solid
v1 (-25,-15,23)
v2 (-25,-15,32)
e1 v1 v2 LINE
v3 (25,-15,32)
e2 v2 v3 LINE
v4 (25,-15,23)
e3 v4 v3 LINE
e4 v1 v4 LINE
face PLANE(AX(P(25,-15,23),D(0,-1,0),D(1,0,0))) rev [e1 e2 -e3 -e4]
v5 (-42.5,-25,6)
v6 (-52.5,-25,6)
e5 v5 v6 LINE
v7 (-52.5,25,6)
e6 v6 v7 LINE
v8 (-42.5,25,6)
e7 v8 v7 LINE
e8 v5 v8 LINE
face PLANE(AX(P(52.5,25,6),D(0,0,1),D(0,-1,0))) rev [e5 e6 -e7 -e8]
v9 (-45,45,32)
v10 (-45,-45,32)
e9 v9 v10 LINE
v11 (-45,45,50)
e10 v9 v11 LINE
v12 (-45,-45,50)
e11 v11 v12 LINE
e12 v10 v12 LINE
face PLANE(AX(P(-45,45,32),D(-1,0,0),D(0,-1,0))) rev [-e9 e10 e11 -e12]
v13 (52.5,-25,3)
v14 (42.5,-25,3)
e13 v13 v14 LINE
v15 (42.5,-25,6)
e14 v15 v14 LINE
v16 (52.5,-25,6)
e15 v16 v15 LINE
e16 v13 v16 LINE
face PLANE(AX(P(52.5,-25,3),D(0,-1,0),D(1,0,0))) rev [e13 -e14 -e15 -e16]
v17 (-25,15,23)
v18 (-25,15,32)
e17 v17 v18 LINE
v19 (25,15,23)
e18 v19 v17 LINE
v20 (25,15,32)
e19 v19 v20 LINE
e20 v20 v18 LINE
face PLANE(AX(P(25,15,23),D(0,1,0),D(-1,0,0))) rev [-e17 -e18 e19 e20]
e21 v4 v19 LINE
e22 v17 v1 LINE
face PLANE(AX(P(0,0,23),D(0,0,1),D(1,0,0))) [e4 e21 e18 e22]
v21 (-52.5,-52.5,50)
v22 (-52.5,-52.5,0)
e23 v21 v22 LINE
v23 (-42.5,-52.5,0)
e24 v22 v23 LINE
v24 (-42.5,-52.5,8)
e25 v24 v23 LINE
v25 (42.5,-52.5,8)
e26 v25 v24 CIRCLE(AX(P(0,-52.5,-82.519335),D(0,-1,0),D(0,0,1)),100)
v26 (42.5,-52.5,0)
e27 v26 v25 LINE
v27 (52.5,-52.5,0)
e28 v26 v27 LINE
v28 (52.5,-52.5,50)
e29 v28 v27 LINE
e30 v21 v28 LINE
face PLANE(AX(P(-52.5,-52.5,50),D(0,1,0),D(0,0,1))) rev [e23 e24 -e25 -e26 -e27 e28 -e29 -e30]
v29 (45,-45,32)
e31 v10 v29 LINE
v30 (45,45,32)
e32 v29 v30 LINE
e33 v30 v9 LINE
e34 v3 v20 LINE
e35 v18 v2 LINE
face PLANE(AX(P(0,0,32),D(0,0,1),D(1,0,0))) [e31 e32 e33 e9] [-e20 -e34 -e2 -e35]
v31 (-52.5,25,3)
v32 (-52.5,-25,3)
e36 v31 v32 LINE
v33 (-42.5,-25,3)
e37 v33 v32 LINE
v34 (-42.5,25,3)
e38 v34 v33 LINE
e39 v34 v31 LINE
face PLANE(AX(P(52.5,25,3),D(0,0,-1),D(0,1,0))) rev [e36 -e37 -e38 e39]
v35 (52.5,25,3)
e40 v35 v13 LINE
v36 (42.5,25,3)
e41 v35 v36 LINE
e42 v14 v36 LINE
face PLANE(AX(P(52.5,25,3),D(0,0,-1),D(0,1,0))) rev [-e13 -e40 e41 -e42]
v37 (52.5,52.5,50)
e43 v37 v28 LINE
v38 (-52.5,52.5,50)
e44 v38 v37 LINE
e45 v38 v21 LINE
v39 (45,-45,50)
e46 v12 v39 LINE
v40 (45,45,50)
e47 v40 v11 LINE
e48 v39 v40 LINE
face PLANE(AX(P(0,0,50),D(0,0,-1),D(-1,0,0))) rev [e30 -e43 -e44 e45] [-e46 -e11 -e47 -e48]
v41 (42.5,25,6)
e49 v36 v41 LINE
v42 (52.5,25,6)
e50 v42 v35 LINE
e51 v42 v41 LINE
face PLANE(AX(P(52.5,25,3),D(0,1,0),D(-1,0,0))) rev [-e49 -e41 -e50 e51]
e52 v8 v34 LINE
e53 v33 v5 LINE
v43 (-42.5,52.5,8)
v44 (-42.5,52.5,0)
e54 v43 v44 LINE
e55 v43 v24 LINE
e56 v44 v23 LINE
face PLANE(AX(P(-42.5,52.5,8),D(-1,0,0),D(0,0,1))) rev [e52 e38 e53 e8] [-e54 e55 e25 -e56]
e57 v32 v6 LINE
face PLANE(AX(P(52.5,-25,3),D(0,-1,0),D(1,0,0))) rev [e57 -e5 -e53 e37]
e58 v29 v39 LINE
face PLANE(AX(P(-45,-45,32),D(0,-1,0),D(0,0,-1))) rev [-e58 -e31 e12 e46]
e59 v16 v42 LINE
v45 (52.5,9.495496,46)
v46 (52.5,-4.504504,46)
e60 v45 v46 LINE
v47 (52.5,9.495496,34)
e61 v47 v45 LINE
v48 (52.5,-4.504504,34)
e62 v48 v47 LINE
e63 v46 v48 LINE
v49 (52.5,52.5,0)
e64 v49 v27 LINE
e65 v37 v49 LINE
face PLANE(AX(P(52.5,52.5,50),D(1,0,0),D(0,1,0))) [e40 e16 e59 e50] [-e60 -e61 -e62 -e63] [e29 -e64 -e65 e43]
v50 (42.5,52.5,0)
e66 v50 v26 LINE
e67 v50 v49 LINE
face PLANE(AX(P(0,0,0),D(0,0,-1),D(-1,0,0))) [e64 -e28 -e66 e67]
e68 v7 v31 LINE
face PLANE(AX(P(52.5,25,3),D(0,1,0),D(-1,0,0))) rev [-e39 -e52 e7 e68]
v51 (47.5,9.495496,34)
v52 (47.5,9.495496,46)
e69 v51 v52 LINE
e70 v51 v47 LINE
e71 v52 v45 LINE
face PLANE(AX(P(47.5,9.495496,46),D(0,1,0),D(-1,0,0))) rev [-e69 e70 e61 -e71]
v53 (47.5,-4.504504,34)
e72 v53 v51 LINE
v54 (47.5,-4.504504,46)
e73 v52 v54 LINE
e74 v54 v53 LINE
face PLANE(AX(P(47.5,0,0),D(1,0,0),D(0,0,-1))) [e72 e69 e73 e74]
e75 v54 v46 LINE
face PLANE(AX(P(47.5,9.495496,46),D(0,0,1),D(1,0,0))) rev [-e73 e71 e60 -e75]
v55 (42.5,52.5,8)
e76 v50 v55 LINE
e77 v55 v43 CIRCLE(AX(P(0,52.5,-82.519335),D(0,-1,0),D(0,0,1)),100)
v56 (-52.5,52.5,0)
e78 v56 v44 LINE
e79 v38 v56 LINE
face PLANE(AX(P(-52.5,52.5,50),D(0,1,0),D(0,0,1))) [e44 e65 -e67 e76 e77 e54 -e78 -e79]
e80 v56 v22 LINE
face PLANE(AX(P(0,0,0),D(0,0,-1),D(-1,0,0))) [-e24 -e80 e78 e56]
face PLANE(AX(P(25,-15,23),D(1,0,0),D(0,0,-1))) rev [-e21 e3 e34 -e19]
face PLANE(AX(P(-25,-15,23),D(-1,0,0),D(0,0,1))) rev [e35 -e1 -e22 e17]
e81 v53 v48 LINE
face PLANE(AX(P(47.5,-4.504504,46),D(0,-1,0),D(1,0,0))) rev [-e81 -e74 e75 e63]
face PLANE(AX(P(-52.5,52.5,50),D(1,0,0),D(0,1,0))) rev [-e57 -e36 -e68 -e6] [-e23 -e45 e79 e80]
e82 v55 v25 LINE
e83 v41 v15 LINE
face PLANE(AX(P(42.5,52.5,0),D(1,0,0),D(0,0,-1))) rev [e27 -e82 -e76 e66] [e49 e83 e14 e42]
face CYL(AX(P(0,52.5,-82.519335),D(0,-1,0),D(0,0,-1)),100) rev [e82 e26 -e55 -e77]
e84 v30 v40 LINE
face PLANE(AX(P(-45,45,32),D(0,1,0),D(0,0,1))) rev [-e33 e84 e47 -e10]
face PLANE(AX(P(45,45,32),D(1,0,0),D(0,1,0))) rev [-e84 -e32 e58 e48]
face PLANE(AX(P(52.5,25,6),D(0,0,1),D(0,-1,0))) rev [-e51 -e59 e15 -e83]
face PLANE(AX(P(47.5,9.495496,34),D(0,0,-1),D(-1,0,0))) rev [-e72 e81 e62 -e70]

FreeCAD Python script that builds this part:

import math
import FreeCAD as App
import Part
import Sketcher
from FreeCAD import Vector

doc = App.newDocument("Part")
params = doc.addObject("Spreadsheet::Sheet", "Params")
for row, (alias, value) in enumerate([
    ("sketch1_width", "105 mm"),
    ("pad1_length", "50 mm"),
    ("sketch2_radius", "100 mm"),
    ("sketch2_width", "85 mm"),
    ("sketch2_height", "8 mm"),
    ("sketch3_width", "90 mm"),
    ("pocket2_length", "18 mm"),
    ("sketch4_width", "50 mm"),
    ("sketch4_height", "30 mm"),
    ("pocket3_length", "9 mm"),
    ("sketch5_width", "50 mm"),
    ("sketch5_height", "3 mm"),
    ("sketch6_width", "14 mm"),
    ("sketch6_height", "12 mm"),
    ("pocket5_length", "5 mm"),
], start=1):
    params.set(f"A{row}", alias)
    params.set(f"B{row}", "=" + value)
    params.setAlias(f"B{row}", alias)

body = doc.addObject("PartDesign::Body", "Body")

# Sketch on XY plane
sketch1 = doc.addObject("Sketcher::SketchObject", "Sketch")
body.addObject(sketch1)
sketch1.AttachmentSupport = (doc.XY_Plane, [""])
sketch1.MapMode = "FlatFace"
sketch1.addGeometry(Part.LineSegment(Vector(-52, 52, 0), Vector(-52, -52, 0)), False)
sketch1.addGeometry(Part.LineSegment(Vector(-52, -52, 0), Vector(52, -52, 0)), False)
sketch1.addGeometry(Part.LineSegment(Vector(52, -52, 0), Vector(52, 52, 0)), False)
sketch1.addGeometry(Part.LineSegment(Vector(52, 52, 0), Vector(-52, 52, 0)), False)
sketch1.addConstraint(Sketcher.Constraint("Coincident", 0, 2, 1, 1))
sketch1.addConstraint(Sketcher.Constraint("Coincident", 1, 2, 2, 1))
sketch1.addConstraint(Sketcher.Constraint("Coincident", 2, 2, 3, 1))
sketch1.addConstraint(Sketcher.Constraint("Coincident", 3, 2, 0, 1))
sketch1.addConstraint(Sketcher.Constraint("Vertical", 0))
sketch1.addConstraint(Sketcher.Constraint("Horizontal", 1))
sketch1.addConstraint(Sketcher.Constraint("Vertical", 2))
sketch1.addConstraint(Sketcher.Constraint("Horizontal", 3))
sketch1.addConstraint(Sketcher.Constraint("Symmetric", 0, 2, 2, 2, -1, 1))
sketch1.addConstraint(Sketcher.Constraint("Equal", 3, 0))
sketch1.addConstraint(Sketcher.Constraint("DistanceX", 1, 1, 1, 2, 105.0))
sketch1.setExpression("Constraints[10]", "Params.sketch1_width")
pad1 = doc.addObject("PartDesign::Pad", "Pad")
body.addObject(pad1)
pad1.Profile = sketch1
pad1.setExpression("Length", "Params.pad1_length")

# Sketch on XZ plane
sketch2 = doc.addObject("Sketcher::SketchObject", "Sketch001")
body.addObject(sketch2)
sketch2.AttachmentSupport = (doc.XZ_Plane, [""])
sketch2.MapMode = "FlatFace"
sketch2.AttachmentOffset = App.Placement(Vector(0, 0, 52.5), App.Rotation())
sketch2.addGeometry(Part.LineSegment(Vector(-42, 8, 0), Vector(-42, 0, 0)), False)
sketch2.addGeometry(Part.LineSegment(Vector(-42, 0, 0), Vector(42, 0, 0)), False)
sketch2.addGeometry(Part.LineSegment(Vector(42, 0, 0), Vector(42, 8, 0)), False)
sketch2.addGeometry(Part.ArcOfCircle(Part.Circle(Vector(0, -83, 0), Vector(0, 0, 1), 100), math.radians(65), math.radians(115)), False)
sketch2.addConstraint(Sketcher.Constraint("Coincident", 0, 2, 1, 1))
sketch2.addConstraint(Sketcher.Constraint("Coincident", 1, 2, 2, 1))
sketch2.addConstraint(Sketcher.Constraint("Coincident", 2, 2, 3, 1))
sketch2.addConstraint(Sketcher.Constraint("Coincident", 3, 2, 0, 1))
sketch2.addConstraint(Sketcher.Constraint("Vertical", 0))
sketch2.addConstraint(Sketcher.Constraint("Horizontal", 1))
sketch2.addConstraint(Sketcher.Constraint("Vertical", 2))
sketch2.addConstraint(Sketcher.Constraint("Symmetric", 0, 2, 1, 2, -1, 1))
sketch2.addConstraint(Sketcher.Constraint("PointOnObject", 3, 3, -2))
sketch2.addConstraint(Sketcher.Constraint("Radius", 3, 100.0))
sketch2.addConstraint(Sketcher.Constraint("DistanceX", 1, 1, 1, 2, 85.0))
sketch2.addConstraint(Sketcher.Constraint("DistanceY", 0, 2, 0, 1, 8.0))
sketch2.setExpression("Constraints[9]", "Params.sketch2_radius")
sketch2.setExpression("Constraints[10]", "Params.sketch2_width")
sketch2.setExpression("Constraints[11]", "Params.sketch2_height")
pocket1 = doc.addObject("PartDesign::Pocket", "Pocket")
body.addObject(pocket1)
pocket1.Profile = sketch2
pocket1.Type = "ThroughAll"

# Sketch on XY plane
sketch3 = doc.addObject("Sketcher::SketchObject", "Sketch002")
body.addObject(sketch3)
sketch3.AttachmentSupport = (doc.XY_Plane, [""])
sketch3.MapMode = "FlatFace"
sketch3.AttachmentOffset = App.Placement(Vector(0, 0, 50), App.Rotation())
sketch3.addGeometry(Part.LineSegment(Vector(-45, 45, 0), Vector(-45, -45, 0)), False)
sketch3.addGeometry(Part.LineSegment(Vector(-45, -45, 0), Vector(45, -45, 0)), False)
sketch3.addGeometry(Part.LineSegment(Vector(45, -45, 0), Vector(45, 45, 0)), False)
sketch3.addGeometry(Part.LineSegment(Vector(45, 45, 0), Vector(-45, 45, 0)), False)
sketch3.addConstraint(Sketcher.Constraint("Coincident", 0, 2, 1, 1))
sketch3.addConstraint(Sketcher.Constraint("Coincident", 1, 2, 2, 1))
sketch3.addConstraint(Sketcher.Constraint("Coincident", 2, 2, 3, 1))
sketch3.addConstraint(Sketcher.Constraint("Coincident", 3, 2, 0, 1))
sketch3.addConstraint(Sketcher.Constraint("Vertical", 0))
sketch3.addConstraint(Sketcher.Constraint("Horizontal", 1))
sketch3.addConstraint(Sketcher.Constraint("Vertical", 2))
sketch3.addConstraint(Sketcher.Constraint("Horizontal", 3))
sketch3.addConstraint(Sketcher.Constraint("Symmetric", 0, 2, 2, 2, -1, 1))
sketch3.addConstraint(Sketcher.Constraint("Equal", 3, 0))
sketch3.addConstraint(Sketcher.Constraint("DistanceX", 1, 1, 1, 2, 90.0))
sketch3.setExpression("Constraints[10]", "Params.sketch3_width")
pocket2 = doc.addObject("PartDesign::Pocket", "Pocket001")
body.addObject(pocket2)
pocket2.Profile = sketch3
pocket2.setExpression("Length", "Params.pocket2_length")

# Sketch on XY plane
sketch4 = doc.addObject("Sketcher::SketchObject", "Sketch003")
body.addObject(sketch4)
sketch4.AttachmentSupport = (doc.XY_Plane, [""])
sketch4.MapMode = "FlatFace"
sketch4.AttachmentOffset = App.Placement(Vector(0, 0, 32), App.Rotation())
sketch4.addGeometry(Part.LineSegment(Vector(-25, 15, 0), Vector(-25, -15, 0)), False)
sketch4.addGeometry(Part.LineSegment(Vector(-25, -15, 0), Vector(25, -15, 0)), False)
sketch4.addGeometry(Part.LineSegment(Vector(25, -15, 0), Vector(25, 15, 0)), False)
sketch4.addGeometry(Part.LineSegment(Vector(25, 15, 0), Vector(-25, 15, 0)), False)
sketch4.addConstraint(Sketcher.Constraint("Coincident", 0, 2, 1, 1))
sketch4.addConstraint(Sketcher.Constraint("Coincident", 1, 2, 2, 1))
sketch4.addConstraint(Sketcher.Constraint("Coincident", 2, 2, 3, 1))
sketch4.addConstraint(Sketcher.Constraint("Coincident", 3, 2, 0, 1))
sketch4.addConstraint(Sketcher.Constraint("Vertical", 0))
sketch4.addConstraint(Sketcher.Constraint("Horizontal", 1))
sketch4.addConstraint(Sketcher.Constraint("Vertical", 2))
sketch4.addConstraint(Sketcher.Constraint("Horizontal", 3))
sketch4.addConstraint(Sketcher.Constraint("Symmetric", 0, 2, 2, 2, -1, 1))
sketch4.addConstraint(Sketcher.Constraint("DistanceX", 1, 1, 1, 2, 50.0))
sketch4.addConstraint(Sketcher.Constraint("DistanceY", 0, 2, 0, 1, 30.0))
sketch4.setExpression("Constraints[9]", "Params.sketch4_width")
sketch4.setExpression("Constraints[10]", "Params.sketch4_height")
pocket3 = doc.addObject("PartDesign::Pocket", "Pocket002")
body.addObject(pocket3)
pocket3.Profile = sketch4
pocket3.setExpression("Length", "Params.pocket3_length")

# Sketch on YZ plane
sketch5 = doc.addObject("Sketcher::SketchObject", "Sketch004")
body.addObject(sketch5)
sketch5.AttachmentSupport = (doc.YZ_Plane, [""])
sketch5.MapMode = "FlatFace"
sketch5.AttachmentOffset = App.Placement(Vector(0, 0, -52.5), App.Rotation())
sketch5.addGeometry(Part.LineSegment(Vector(25, 3, 0), Vector(-25, 3, 0)), False)
sketch5.addGeometry(Part.LineSegment(Vector(-25, 3, 0), Vector(-25, 6, 0)), False)
sketch5.addGeometry(Part.LineSegment(Vector(-25, 6, 0), Vector(25, 6, 0)), False)
sketch5.addGeometry(Part.LineSegment(Vector(25, 6, 0), Vector(25, 3, 0)), False)
sketch5.addConstraint(Sketcher.Constraint("Coincident", 0, 2, 1, 1))
sketch5.addConstraint(Sketcher.Constraint("Coincident", 1, 2, 2, 1))
sketch5.addConstraint(Sketcher.Constraint("Coincident", 2, 2, 3, 1))
sketch5.addConstraint(Sketcher.Constraint("Coincident", 3, 2, 0, 1))
sketch5.addConstraint(Sketcher.Constraint("Horizontal", 0))
sketch5.addConstraint(Sketcher.Constraint("Vertical", 1))
sketch5.addConstraint(Sketcher.Constraint("Horizontal", 2))
sketch5.addConstraint(Sketcher.Constraint("Vertical", 3))
sketch5.addConstraint(Sketcher.Constraint("DistanceX", 0, 2, 0, 1, 50.0))
sketch5.addConstraint(Sketcher.Constraint("DistanceY", 1, 1, 1, 2, 3.0))
sketch5.addConstraint(Sketcher.Constraint("DistanceX", 0, 2, -1, 1, 25.0))
sketch5.addConstraint(Sketcher.Constraint("DistanceY", -1, 1, 0, 2, 3.0))
sketch5.setExpression("Constraints[8]", "Params.sketch5_width")
sketch5.setExpression("Constraints[9]", "Params.sketch5_height")
pocket4 = doc.addObject("PartDesign::Pocket", "Pocket003")
body.addObject(pocket4)
pocket4.Profile = sketch5
pocket4.Type = "ThroughAll"
pocket4.Reversed = True

# Sketch on YZ plane
sketch6 = doc.addObject("Sketcher::SketchObject", "Sketch005")
body.addObject(sketch6)
sketch6.AttachmentSupport = (doc.YZ_Plane, [""])
sketch6.MapMode = "FlatFace"
sketch6.AttachmentOffset = App.Placement(Vector(0, 0, 52.5), App.Rotation())
sketch6.addGeometry(Part.LineSegment(Vector(9, 46, 0), Vector(-5, 46, 0)), False)
sketch6.addGeometry(Part.LineSegment(Vector(-5, 46, 0), Vector(-5, 34, 0)), False)
sketch6.addGeometry(Part.LineSegment(Vector(-5, 34, 0), Vector(9, 34, 0)), False)
sketch6.addGeometry(Part.LineSegment(Vector(9, 34, 0), Vector(9, 46, 0)), False)
sketch6.addConstraint(Sketcher.Constraint("Coincident", 0, 2, 1, 1))
sketch6.addConstraint(Sketcher.Constraint("Coincident", 1, 2, 2, 1))
sketch6.addConstraint(Sketcher.Constraint("Coincident", 2, 2, 3, 1))
sketch6.addConstraint(Sketcher.Constraint("Coincident", 3, 2, 0, 1))
sketch6.addConstraint(Sketcher.Constraint("Horizontal", 0))
sketch6.addConstraint(Sketcher.Constraint("Vertical", 1))
sketch6.addConstraint(Sketcher.Constraint("Horizontal", 2))
sketch6.addConstraint(Sketcher.Constraint("Vertical", 3))
sketch6.addConstraint(Sketcher.Constraint("DistanceX", 0, 2, 0, 1, 14.0))
sketch6.addConstraint(Sketcher.Constraint("DistanceY", 1, 2, 1, 1, 12.0))
sketch6.addConstraint(Sketcher.Constraint("DistanceY", -1, 1, 0, 2, 46.0))
sketch6.addConstraint(Sketcher.Constraint("DistanceX", 0, 2, -1, 1, 4.504504))
sketch6.setExpression("Constraints[8]", "Params.sketch6_width")
sketch6.setExpression("Constraints[9]", "Params.sketch6_height")
pocket5 = doc.addObject("PartDesign::Pocket", "Pocket004")
body.addObject(pocket5)
pocket5.Profile = sketch6
pocket5.setExpression("Length", "Params.pocket5_length")

doc.recompute()
